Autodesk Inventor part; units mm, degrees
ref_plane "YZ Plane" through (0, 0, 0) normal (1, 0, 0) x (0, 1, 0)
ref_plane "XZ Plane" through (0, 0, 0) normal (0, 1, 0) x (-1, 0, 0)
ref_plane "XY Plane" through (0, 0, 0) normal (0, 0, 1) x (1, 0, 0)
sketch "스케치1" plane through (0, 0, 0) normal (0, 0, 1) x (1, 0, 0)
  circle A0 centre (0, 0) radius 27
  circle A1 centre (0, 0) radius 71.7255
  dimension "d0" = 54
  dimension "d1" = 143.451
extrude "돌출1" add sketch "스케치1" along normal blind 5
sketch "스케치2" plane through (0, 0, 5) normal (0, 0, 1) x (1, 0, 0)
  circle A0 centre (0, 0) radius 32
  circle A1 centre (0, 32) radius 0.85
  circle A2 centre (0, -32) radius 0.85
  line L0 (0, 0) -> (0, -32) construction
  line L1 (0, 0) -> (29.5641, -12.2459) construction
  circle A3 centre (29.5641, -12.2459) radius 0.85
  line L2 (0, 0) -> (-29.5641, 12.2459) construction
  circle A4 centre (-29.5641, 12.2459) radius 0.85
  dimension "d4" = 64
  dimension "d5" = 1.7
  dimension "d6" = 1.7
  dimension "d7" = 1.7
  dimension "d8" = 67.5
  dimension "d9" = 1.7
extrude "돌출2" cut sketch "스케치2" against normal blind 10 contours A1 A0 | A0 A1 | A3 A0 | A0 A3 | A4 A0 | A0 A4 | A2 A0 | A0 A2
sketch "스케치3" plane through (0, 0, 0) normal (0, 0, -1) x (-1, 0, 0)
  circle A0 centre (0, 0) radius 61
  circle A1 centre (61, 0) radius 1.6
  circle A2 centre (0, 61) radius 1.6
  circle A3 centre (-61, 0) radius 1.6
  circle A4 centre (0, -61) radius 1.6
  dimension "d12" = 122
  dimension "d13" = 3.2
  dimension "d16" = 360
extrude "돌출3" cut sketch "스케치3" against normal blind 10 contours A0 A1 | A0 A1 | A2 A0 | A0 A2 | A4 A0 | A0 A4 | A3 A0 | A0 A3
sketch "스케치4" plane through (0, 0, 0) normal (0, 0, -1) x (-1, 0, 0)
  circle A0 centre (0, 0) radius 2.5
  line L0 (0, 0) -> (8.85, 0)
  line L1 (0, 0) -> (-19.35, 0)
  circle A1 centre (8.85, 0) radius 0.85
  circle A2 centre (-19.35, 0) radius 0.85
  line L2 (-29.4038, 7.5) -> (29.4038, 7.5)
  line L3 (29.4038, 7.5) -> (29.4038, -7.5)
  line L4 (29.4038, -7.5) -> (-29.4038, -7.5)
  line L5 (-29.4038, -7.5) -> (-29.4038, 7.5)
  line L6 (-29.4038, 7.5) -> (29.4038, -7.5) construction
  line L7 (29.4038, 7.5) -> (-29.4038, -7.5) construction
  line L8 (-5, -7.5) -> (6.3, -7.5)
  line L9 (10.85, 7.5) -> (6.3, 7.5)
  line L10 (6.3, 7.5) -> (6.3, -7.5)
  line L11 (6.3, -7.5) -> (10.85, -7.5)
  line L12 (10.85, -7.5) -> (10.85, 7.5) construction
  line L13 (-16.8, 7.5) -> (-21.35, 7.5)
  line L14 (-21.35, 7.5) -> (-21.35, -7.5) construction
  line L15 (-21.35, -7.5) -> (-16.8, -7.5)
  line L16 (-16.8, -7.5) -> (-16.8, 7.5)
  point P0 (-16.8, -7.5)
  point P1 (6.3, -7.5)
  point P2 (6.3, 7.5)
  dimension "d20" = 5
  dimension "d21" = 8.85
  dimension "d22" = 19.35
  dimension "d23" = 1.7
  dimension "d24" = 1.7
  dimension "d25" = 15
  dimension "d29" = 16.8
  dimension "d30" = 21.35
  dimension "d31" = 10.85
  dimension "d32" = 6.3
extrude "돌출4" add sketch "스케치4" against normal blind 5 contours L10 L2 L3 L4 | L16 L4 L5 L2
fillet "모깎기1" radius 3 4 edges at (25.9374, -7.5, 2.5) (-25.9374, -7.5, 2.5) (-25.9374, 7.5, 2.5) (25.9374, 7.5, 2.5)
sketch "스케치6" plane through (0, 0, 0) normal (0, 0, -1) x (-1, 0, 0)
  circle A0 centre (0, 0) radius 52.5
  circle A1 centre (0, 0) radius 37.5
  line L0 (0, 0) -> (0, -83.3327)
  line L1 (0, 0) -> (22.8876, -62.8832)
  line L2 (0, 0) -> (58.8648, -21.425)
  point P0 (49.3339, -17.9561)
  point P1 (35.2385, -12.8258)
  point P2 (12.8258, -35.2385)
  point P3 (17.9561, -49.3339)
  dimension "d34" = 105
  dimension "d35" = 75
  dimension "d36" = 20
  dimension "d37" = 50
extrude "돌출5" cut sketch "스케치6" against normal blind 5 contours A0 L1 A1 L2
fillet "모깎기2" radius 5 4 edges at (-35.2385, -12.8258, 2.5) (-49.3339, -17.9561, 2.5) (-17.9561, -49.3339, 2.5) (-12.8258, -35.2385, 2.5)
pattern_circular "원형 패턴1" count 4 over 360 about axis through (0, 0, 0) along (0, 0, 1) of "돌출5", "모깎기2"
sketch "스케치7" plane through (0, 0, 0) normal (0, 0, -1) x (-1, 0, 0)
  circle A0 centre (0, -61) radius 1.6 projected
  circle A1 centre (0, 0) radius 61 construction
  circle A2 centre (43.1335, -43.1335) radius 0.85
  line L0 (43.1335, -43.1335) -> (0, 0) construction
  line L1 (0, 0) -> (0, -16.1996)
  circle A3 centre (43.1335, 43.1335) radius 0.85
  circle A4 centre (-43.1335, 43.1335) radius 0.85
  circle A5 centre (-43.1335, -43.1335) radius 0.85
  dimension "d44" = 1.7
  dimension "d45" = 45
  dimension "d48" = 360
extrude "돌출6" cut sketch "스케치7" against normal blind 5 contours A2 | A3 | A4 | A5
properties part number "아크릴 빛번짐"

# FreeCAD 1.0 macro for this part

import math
import FreeCAD as App
import Part
import Sketcher

V = App.Vector
Q = App.Units.Quantity


def edges_at(feature, points):
    """Names of the edges that pass closest to the given points."""
    edges = feature.Shape.Edges
    near = lambda p: min(range(len(edges)), key=lambda i: edges[i].distToShape(Part.Vertex(*p))[0])
    return sorted({f"Edge{near(p) + 1}" for p in points})


def add_polygon(sketch, points):
    """Adds a closed chain of lines whose ends are joined by coincident constraints."""
    first, n = sketch.GeometryCount, len(points)
    for a, b in zip(points, points[1:] + points[:1]):
        sketch.addGeometry(Part.LineSegment(App.Vector(*a, 0), App.Vector(*b, 0)), False)
    for i in range(n):
        sketch.addConstraint(Sketcher.Constraint("Coincident", first + i, 2, first + (i + 1) % n, 1))

doc = App.newDocument("Part")
body = doc.addObject("PartDesign::Body", "Body")

# Sketch on XY plane
sketch1 = body.newObject("Sketcher::SketchObject", "Sketch")
sketch1.AttachmentSupport = (doc.getObject("XY_Plane"), [""])
sketch1.MapMode = "FlatFace"
sketch1.addGeometry(Part.Circle(V(0, 0, 0), V(0, 0, 1), 72), False)
sketch1.addGeometry(Part.Circle(V(0, 0, 0), V(0, 0, 1), 27), False)
sketch1.addConstraint(Sketcher.Constraint("Coincident", 0, 3, -1, 1))
sketch1.addConstraint(Sketcher.Constraint("Coincident", 1, 3, -1, 1))
sketch1.addConstraint(Sketcher.Constraint("Diameter", 1, Q("54 mm")))
sketch1.addConstraint(Sketcher.Constraint("Diameter", 0, Q("143.451 mm")))
pad1 = body.newObject("PartDesign::Pad", "Pad")
pad1.Profile = sketch1
pad1.Length = 5

# Sketch on XY plane
sketch2 = body.newObject("Sketcher::SketchObject", "Sketch001")
sketch2.AttachmentSupport = (doc.getObject("XY_Plane"), [""])
sketch2.MapMode = "FlatFace"
sketch2.AttachmentOffset = App.Placement(V(0, 0, 5), App.Rotation())
sketch2.addGeometry(Part.Circle(V(0, 32, 0), V(0, 0, 1), 0.8), False)
sketch2.addGeometry(Part.Circle(V(29.6, -12.2, 0), V(0, 0, 1), 0.8), False)
sketch2.addGeometry(Part.Circle(V(-29.6, 12.2, 0), V(0, 0, 1), 0.8), False)
sketch2.addGeometry(Part.Circle(V(0, -32, 0), V(0, 0, 1), 0.8), False)
sketch2.addConstraint(Sketcher.Constraint("Equal", 0, 1))
sketch2.addConstraint(Sketcher.Constraint("Equal", 1, 2))
sketch2.addConstraint(Sketcher.Constraint("Equal", 2, 3))
sketch2.addConstraint(Sketcher.Constraint("Symmetric", 1, 3, 2, 3, -1, 1))
sketch2.addConstraint(Sketcher.Constraint("Symmetric", 0, 3, 3, 3, -1, 1))
sketch2.addConstraint(Sketcher.Constraint("PointOnObject", 0, 3, -2))
sketch2.addConstraint(Sketcher.Constraint("Diameter", 0, Q("1.7 mm")))
sketch2.addConstraint(Sketcher.Constraint("DistanceY", 3, 3, 0, 3, Q("64 mm")))
sketch2.addConstraint(Sketcher.Constraint("DistanceX", -1, 1, 1, 3, Q("29.564 mm")))
sketch2.addConstraint(Sketcher.Constraint("DistanceY", 1, 3, -1, 1, Q("12.246 mm")))
pocket1 = body.newObject("PartDesign::Pocket", "Pocket")
pocket1.Profile = sketch2
pocket1.Length = 10

# Sketch on XY plane
sketch3 = body.newObject("Sketcher::SketchObject", "Sketch002")
sketch3.AttachmentSupport = (doc.getObject("XY_Plane"), [""])
sketch3.MapMode = "FlatFace"
sketch3.addGeometry(Part.Circle(V(-61, 0, 0), V(0, 0, 1), 1.6), False)
sketch3.addGeometry(Part.Circle(V(0, 61, 0), V(0, 0, 1), 1.6), False)
sketch3.addGeometry(Part.Circle(V(0, -61, 0), V(0, 0, 1), 1.6), False)
sketch3.addGeometry(Part.Circle(V(61, 0, 0), V(0, 0, 1), 1.6), False)
sketch3.addConstraint(Sketcher.Constraint("Equal", 0, 1))
sketch3.addConstraint(Sketcher.Constraint("Equal", 1, 2))
sketch3.addConstraint(Sketcher.Constraint("Equal", 2, 3))
sketch3.addConstraint(Sketcher.Constraint("Symmetric", 1, 3, 2, 3, -1, 1))
sketch3.addConstraint(Sketcher.Constraint("Symmetric", 0, 3, 3, 3, -1, 1))
sketch3.addConstraint(Sketcher.Constraint("PointOnObject", 0, 3, -1))
sketch3.addConstraint(Sketcher.Constraint("PointOnObject", 1, 3, -2))
sketch3.addConstraint(Sketcher.Constraint("Diameter", 0, Q("3.2 mm")))
sketch3.addConstraint(Sketcher.Constraint("DistanceY", 2, 3, 1, 3, Q("122 mm")))
sketch3.addConstraint(Sketcher.Constraint("DistanceX", 0, 3, 3, 3, Q("122 mm")))
pocket2 = body.newObject("PartDesign::Pocket", "Pocket001")
pocket2.Profile = sketch3
pocket2.Length = 10
pocket2.Reversed = True

# Sketch on XY plane
sketch4 = body.newObject("Sketcher::SketchObject", "Sketch003")
sketch4.AttachmentSupport = (doc.getObject("XY_Plane"), [""])
sketch4.MapMode = "FlatFace"
add_polygon(sketch4, [(-6.3, 7.5), (-6.3, 0), (-6.3, -7.5), (-29.4, -7.5), (-29.4, 7.5)])  # lines 0-4
sketch4.addGeometry(Part.Circle(V(-8.8, 0, 0), V(0, 0, 1), 0.8), False)  # 5
add_polygon(sketch4, [(16.8, -7.5), (16.8, 0), (16.8, 7.5), (29.4, 7.5), (29.4, -7.5)])  # lines 6-10
sketch4.addGeometry(Part.Circle(V(19.4, 0, 0), V(0, 0, 1), 0.8), False)  # 11
sketch4.addConstraint(Sketcher.Constraint("Vertical", 0))
sketch4.addConstraint(Sketcher.Constraint("Vertical", 1))
sketch4.addConstraint(Sketcher.Constraint("Horizontal", 2))
sketch4.addConstraint(Sketcher.Constraint("Vertical", 3))
sketch4.addConstraint(Sketcher.Constraint("Horizontal", 4))
sketch4.addConstraint(Sketcher.Constraint("Vertical", 6))
sketch4.addConstraint(Sketcher.Constraint("Vertical", 7))
sketch4.addConstraint(Sketcher.Constraint("Horizontal", 8))
sketch4.addConstraint(Sketcher.Constraint("Vertical", 9))
sketch4.addConstraint(Sketcher.Constraint("Horizontal", 10))
sketch4.addConstraint(Sketcher.Constraint("Equal", 5, 11))
sketch4.addConstraint(Sketcher.Constraint("Symmetric", 2, 2, 8, 2, -1, 1))
sketch4.addConstraint(Sketcher.Constraint("PointOnObject", 5, 3, -1))
sketch4.addConstraint(Sketcher.Constraint("PointOnObject", 11, 3, -1))
sketch4.addConstraint(Sketcher.Constraint("PointOnObject", 0, 2, -1))
sketch4.addConstraint(Sketcher.Constraint("PointOnObject", 6, 2, -1))
sketch4.addConstraint(Sketcher.Constraint("Horizontal", 4, 2, 7, 2))
sketch4.addConstraint(Sketcher.Constraint("Horizontal", 2, 2, 9, 2))
sketch4.addConstraint(Sketcher.Constraint("Diameter", 5, Q("1.7 mm")))
sketch4.addConstraint(Sketcher.Constraint("DistanceY", 3, 1, 3, 2, Q("15 mm")))
sketch4.addConstraint(Sketcher.Constraint("DistanceX", 0, 2, -1, 1, Q("6.3 mm")))
sketch4.addConstraint(Sketcher.Constraint("DistanceX", -1, 1, 6, 2, Q("16.8 mm")))
sketch4.addConstraint(Sketcher.Constraint("DistanceX", 5, 3, -1, 1, Q("8.85 mm")))
sketch4.addConstraint(Sketcher.Constraint("DistanceX", -1, 1, 11, 3, Q("19.35 mm")))
sketch4.addConstraint(Sketcher.Constraint("DistanceX", 2, 2, 2, 1, Q("23.1038 mm")))
pad2 = body.newObject("PartDesign::Pad", "Pad001")
pad2.Profile = sketch4
pad2.Length = 5
doc.recompute()

fillet = body.newObject("PartDesign::Fillet", "Fillet")
fillet.Base = (pad2, edges_at(pad2, [
    (25.937, -7.5, 2.5),
    (-25.937, -7.5, 2.5),
    (-25.937, 7.5, 2.5),
    (25.937, 7.5, 2.5),
]))
fillet.Radius = 3

# Sketch on XY plane
sketch5 = body.newObject("Sketcher::SketchObject", "Sketch004")
sketch5.AttachmentSupport = (doc.getObject("XY_Plane"), [""])
sketch5.MapMode = "FlatFace"
sketch5.addGeometry(Part.ArcOfCircle(Part.Circle(V(0, 0, 0), V(0, 0, 1), 52), math.radians(-160), math.radians(-110)), False)
sketch5.addGeometry(Part.LineSegment(V(-49, -18, 0), V(-35, -13, 0)), False)
sketch5.addGeometry(Part.ArcOfCircle(Part.Circle(V(0, 0, 0), V(0, 0, 1), 38), math.radians(-160), math.radians(-110)), False)
sketch5.addGeometry(Part.LineSegment(V(-13, -35, 0), V(-18, -49, 0)), False)
sketch5.addConstraint(Sketcher.Constraint("Coincident", 0, 1, 1, 1))
sketch5.addConstraint(Sketcher.Constraint("Coincident", 1, 2, 2, 1))
sketch5.addConstraint(Sketcher.Constraint("Coincident", 2, 2, 3, 1))
sketch5.addConstraint(Sketcher.Constraint("Coincident", 3, 2, 0, 2))
sketch5.addConstraint(Sketcher.Constraint("Coincident", 0, 3, -1, 1))
sketch5.addConstraint(Sketcher.Constraint("Coincident", 2, 3, -1, 1))
sketch5.addConstraint(Sketcher.Constraint("Radius", 0, Q("52.5 mm")))
sketch5.addConstraint(Sketcher.Constraint("Radius", 2, Q("37.5 mm")))
sketch5.addConstraint(Sketcher.Constraint("Angle", 1, Q("20 deg")))
sketch5.addConstraint(Sketcher.Constraint("Angle", 3, Q("-110 deg")))
sketch5.addConstraint(Sketcher.Constraint("DistanceY", 0, 1, -1, 1, Q("17.956 mm")))
sketch5.addConstraint(Sketcher.Constraint("DistanceX", 3, 2, -1, 1, Q("17.956 mm")))
pocket3 = body.newObject("PartDesign::Pocket", "Pocket002")
pocket3.Profile = sketch5
pocket3.Length = 5
pocket3.Reversed = True
doc.recompute()

fillet2 = body.newObject("PartDesign::Fillet", "Fillet001")
fillet2.Base = (pocket3, edges_at(pocket3, [
    (-35.239, -12.826, 2.5),
    (-49.334, -17.956, 2.5),
    (-17.956, -49.334, 2.5),
    (-12.826, -35.239, 2.5),
]))
fillet2.Radius = 5
doc.recompute()

polarpattern = body.newObject("PartDesign::PolarPattern", "PolarPattern")
polarpattern.Originals = [pocket3, fillet2]
polarpattern.Axis = (doc.getObject("Z_Axis"), [""])
polarpattern.Angle = 360
polarpattern.Occurrences = 4
body.Tip = polarpattern

# Sketch on XY plane
sketch6 = body.newObject("Sketcher::SketchObject", "Sketch005")
sketch6.AttachmentSupport = (doc.getObject("XY_Plane"), [""])
sketch6.MapMode = "FlatFace"
sketch6.addGeometry(Part.Circle(V(-43.1, -43.1, 0), V(0, 0, 1), 0.8), False)
sketch6.addGeometry(Part.Circle(V(-43.1, 43.1, 0), V(0, 0, 1), 0.8), False)
sketch6.addGeometry(Part.Circle(V(43.1, 43.1, 0), V(0, 0, 1), 0.8), False)
sketch6.addGeometry(Part.Circle(V(43.1, -43.1, 0), V(0, 0, 1), 0.8), False)
sketch6.addConstraint(Sketcher.Constraint("Equal", 0, 1))
sketch6.addConstraint(Sketcher.Constraint("Equal", 1, 2))
sketch6.addConstraint(Sketcher.Constraint("Equal", 2, 3))
sketch6.addConstraint(Sketcher.Constraint("Symmetric", 0, 3, 2, 3, -1, 1))
sketch6.addConstraint(Sketcher.Constraint("Symmetric", 1, 3, 3, 3, -1, 1))
sketch6.addConstraint(Sketcher.Constraint("Symmetric", 1, 3, 2, 3, -2))
sketch6.addConstraint(Sketcher.Constraint("Diameter", 0, Q("1.7 mm")))
sketch6.addConstraint(Sketcher.Constraint("DistanceY", 0, 3, 1, 3, Q("86.267 mm")))
sketch6.addConstraint(Sketcher.Constraint("DistanceX", 1, 3, 2, 3, Q("86.267 mm")))
pocket4 = body.newObject("PartDesign::Pocket", "Pocket003")
pocket4.Profile = sketch6
pocket4.Length = 5
pocket4.Reversed = True

doc.recompute()
